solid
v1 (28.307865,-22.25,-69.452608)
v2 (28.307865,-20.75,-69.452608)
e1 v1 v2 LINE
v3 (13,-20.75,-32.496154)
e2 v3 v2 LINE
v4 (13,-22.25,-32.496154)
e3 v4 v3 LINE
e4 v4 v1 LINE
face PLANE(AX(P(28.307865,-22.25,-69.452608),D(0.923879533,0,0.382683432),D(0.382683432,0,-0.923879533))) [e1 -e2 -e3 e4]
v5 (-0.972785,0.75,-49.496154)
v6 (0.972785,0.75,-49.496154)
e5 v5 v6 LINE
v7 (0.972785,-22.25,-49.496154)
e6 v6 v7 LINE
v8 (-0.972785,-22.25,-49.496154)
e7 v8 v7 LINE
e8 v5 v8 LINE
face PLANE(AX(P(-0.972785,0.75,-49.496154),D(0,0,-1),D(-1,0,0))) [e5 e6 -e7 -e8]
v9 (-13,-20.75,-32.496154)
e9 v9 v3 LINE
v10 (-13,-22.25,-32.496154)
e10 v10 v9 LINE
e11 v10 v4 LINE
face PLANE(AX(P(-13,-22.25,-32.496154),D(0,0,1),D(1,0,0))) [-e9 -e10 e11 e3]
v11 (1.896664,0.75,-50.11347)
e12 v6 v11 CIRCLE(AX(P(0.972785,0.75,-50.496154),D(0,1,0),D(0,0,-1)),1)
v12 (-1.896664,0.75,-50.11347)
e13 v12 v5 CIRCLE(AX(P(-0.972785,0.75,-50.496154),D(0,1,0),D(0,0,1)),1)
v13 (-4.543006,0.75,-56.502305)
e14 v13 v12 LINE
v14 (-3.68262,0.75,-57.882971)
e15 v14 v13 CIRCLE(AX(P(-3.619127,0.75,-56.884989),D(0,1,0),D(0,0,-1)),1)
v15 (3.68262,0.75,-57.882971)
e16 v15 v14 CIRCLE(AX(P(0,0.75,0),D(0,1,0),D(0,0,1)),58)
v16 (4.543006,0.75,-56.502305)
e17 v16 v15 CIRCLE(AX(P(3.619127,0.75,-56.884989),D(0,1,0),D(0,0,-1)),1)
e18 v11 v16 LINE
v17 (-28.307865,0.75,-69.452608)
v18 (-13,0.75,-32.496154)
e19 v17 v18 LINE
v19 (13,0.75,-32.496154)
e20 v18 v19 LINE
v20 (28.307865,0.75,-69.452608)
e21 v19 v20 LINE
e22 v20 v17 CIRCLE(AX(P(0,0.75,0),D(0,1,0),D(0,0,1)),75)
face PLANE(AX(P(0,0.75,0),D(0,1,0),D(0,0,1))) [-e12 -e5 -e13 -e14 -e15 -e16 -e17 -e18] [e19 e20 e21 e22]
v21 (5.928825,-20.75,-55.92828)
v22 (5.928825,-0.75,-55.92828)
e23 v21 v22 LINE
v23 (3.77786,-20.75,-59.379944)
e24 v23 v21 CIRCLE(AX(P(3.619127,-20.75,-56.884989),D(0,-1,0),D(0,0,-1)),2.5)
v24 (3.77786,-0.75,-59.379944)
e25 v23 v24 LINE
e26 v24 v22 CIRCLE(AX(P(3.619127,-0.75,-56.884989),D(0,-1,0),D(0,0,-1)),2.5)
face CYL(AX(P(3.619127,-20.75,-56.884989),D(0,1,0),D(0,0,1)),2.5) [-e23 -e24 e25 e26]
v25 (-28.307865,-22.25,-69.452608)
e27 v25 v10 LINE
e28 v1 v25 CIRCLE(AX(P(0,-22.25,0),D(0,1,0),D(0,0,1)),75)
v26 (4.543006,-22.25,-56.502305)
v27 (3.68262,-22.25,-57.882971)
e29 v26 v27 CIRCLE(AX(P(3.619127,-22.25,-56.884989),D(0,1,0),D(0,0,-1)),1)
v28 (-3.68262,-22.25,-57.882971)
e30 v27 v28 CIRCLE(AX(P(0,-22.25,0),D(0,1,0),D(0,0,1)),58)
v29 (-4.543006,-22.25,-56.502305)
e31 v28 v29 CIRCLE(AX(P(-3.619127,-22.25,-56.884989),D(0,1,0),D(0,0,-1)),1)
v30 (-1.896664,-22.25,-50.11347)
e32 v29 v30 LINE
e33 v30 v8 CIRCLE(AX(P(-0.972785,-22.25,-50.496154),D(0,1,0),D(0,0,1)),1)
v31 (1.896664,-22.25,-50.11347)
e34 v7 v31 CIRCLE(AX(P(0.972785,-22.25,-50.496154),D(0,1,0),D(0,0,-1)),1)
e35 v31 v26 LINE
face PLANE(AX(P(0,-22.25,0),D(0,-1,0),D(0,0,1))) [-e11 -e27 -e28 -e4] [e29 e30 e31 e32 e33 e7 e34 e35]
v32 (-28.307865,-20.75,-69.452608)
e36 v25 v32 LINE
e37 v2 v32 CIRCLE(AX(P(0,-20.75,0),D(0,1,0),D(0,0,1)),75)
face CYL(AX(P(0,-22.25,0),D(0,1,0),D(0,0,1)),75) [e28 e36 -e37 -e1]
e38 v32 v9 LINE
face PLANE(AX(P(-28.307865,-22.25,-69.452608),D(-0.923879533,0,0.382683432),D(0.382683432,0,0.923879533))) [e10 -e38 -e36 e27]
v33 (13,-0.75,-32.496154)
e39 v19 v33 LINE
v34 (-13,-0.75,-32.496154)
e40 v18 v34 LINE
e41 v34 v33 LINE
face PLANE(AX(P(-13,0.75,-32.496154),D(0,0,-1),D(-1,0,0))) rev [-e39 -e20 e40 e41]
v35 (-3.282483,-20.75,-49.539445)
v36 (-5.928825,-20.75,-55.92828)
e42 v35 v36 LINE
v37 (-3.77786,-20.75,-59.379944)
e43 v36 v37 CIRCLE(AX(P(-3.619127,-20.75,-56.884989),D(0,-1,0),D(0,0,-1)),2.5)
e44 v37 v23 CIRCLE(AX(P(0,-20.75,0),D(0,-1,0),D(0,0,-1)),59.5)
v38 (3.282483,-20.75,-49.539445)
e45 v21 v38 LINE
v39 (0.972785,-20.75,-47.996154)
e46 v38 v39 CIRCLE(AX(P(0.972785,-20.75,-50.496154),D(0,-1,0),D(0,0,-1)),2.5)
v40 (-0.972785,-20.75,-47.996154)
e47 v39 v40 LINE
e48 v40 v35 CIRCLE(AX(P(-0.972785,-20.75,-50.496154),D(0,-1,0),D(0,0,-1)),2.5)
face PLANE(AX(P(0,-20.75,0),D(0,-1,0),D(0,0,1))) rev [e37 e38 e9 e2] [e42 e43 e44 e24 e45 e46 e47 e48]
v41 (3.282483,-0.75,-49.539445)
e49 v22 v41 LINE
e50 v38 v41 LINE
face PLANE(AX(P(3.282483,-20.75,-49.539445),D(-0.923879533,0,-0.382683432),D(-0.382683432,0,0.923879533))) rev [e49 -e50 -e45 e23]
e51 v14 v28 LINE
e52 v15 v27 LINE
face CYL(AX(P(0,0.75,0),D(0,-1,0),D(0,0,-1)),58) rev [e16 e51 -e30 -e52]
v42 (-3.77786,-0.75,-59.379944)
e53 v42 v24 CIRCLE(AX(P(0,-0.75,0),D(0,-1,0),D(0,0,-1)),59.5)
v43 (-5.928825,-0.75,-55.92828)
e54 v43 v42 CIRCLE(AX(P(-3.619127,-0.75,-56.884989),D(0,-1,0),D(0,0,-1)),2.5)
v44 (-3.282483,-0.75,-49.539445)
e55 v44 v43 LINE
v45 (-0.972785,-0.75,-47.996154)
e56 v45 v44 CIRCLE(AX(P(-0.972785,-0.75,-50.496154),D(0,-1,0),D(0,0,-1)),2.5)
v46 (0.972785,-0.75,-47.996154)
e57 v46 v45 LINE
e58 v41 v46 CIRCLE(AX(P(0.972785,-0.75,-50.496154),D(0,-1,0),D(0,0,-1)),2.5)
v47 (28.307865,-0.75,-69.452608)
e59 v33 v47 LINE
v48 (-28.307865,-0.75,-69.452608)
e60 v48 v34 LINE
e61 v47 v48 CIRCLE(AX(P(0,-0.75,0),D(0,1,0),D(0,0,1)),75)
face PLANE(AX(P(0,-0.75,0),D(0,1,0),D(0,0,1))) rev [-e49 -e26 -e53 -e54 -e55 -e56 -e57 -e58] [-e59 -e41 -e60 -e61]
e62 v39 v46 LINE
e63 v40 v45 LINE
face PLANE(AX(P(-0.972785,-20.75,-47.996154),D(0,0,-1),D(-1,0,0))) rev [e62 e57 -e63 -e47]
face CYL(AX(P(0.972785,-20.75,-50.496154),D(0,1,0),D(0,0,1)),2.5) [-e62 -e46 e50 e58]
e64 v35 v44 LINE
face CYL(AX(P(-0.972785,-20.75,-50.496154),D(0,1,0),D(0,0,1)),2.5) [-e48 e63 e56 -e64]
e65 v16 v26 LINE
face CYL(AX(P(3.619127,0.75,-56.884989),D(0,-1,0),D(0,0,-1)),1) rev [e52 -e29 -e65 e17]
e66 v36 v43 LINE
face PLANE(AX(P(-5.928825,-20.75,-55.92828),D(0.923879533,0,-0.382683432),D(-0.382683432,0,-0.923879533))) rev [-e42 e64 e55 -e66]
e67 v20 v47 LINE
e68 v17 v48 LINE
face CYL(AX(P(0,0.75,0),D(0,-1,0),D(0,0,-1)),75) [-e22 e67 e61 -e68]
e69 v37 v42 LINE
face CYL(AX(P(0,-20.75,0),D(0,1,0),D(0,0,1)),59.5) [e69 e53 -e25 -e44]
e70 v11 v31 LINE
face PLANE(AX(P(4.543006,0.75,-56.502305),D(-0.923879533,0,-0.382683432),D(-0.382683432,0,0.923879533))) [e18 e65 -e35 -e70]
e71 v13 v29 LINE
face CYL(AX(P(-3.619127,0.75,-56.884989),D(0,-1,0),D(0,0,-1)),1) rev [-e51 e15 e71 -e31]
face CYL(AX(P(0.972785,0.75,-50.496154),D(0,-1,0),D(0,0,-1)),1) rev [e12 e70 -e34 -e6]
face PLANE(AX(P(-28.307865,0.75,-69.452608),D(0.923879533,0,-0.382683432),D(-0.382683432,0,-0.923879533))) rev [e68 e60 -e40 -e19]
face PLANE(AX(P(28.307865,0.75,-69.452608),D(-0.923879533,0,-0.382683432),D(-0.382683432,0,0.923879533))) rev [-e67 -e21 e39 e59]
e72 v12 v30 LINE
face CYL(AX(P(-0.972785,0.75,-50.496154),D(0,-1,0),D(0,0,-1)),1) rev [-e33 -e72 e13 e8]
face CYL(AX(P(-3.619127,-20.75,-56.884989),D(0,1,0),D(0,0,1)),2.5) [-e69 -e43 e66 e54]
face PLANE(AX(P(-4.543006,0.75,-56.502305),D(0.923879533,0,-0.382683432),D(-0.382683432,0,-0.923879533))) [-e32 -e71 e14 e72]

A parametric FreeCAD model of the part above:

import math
import FreeCAD as App
import Part
import Sketcher
Q = App.Units.Quantity

doc = App.newDocument("Part")
body = doc.addObject("PartDesign::Body", "Body")

# Sketch on XZ plane
sketch1 = body.newObject("Sketcher::SketchObject", "Sketch")
sketch1.AttachmentSupport = (doc.getObject("XZ_Plane"), [""])
sketch1.MapMode = "FlatFace"
sketch1.addGeometry([
    Part.LineSegment(App.Vector(-28.3, -69.5, 0), App.Vector(-13, -32.5, 0)),  # 0
    Part.LineSegment(App.Vector(-13, -32.5, 0), App.Vector(13, -32.5, 0)),  # 1
    Part.LineSegment(App.Vector(13, -32.5, 0), App.Vector(28.3, -69.5, 0)),  # 2
    Part.ArcOfCircle(Part.Circle(App.Vector(0, 0, 0), App.Vector(0, 0, 1), 75), math.radians(-112), math.radians(-68)),  # 3
    Part.LineSegment(App.Vector(-1.9, -50.1, 0), App.Vector(-4.5, -56.5, 0)),  # 4
    Part.ArcOfCircle(Part.Circle(App.Vector(-3.6, -56.9, 0), App.Vector(0, 0, 1), 1), math.radians(158), math.radians(266)),  # 5
    Part.ArcOfCircle(Part.Circle(App.Vector(0, 0, 0), App.Vector(0, 0, 1), 58), math.radians(-93.64), math.radians(-86.36)),  # 6
    Part.ArcOfCircle(Part.Circle(App.Vector(3.6, -56.9, 0), App.Vector(0, 0, 1), 1), math.radians(-86), math.radians(22)),  # 7
    Part.LineSegment(App.Vector(4.5, -56.5, 0), App.Vector(1.9, -50.1, 0)),  # 8
    Part.ArcOfCircle(Part.Circle(App.Vector(1, -50.5, 0), App.Vector(0, 0, 1), 1), math.radians(22), math.radians(90)),  # 9
    Part.LineSegment(App.Vector(1, -49.5, 0), App.Vector(-1, -49.5, 0)),  # 10
    Part.ArcOfCircle(Part.Circle(App.Vector(-1, -50.5, 0), App.Vector(0, 0, 1), 1), math.radians(90), math.radians(158)),  # 11
], False)
sketch1.addConstraint([
    Sketcher.Constraint("Coincident", 0, 2, 1, 1),
    Sketcher.Constraint("Coincident", 1, 2, 2, 1),
    Sketcher.Constraint("Coincident", 2, 2, 3, 2),
    Sketcher.Constraint("Coincident", 3, 1, 0, 1),
    Sketcher.Constraint("Tangent", 4, 2, 5, 1),
    Sketcher.Constraint("Tangent", 5, 2, 6, 1),
    Sketcher.Constraint("Tangent", 6, 2, 7, 1),
    Sketcher.Constraint("Tangent", 7, 2, 8, 1),
    Sketcher.Constraint("Tangent", 8, 2, 9, 1),
    Sketcher.Constraint("Tangent", 9, 2, 10, 1),
    Sketcher.Constraint("Tangent", 10, 2, 11, 1),
    Sketcher.Constraint("Tangent", 11, 2, 4, 1),
    Sketcher.Constraint("Horizontal", 1),
    Sketcher.Constraint("Horizontal", 10),
    Sketcher.Constraint("Coincident", 3, 3, -1, 1),
    Sketcher.Constraint("Coincident", 6, 3, -1, 1),
    Sketcher.Constraint("Equal", 5, 7),
    Sketcher.Constraint("Equal", 7, 9),
    Sketcher.Constraint("Equal", 9, 11),
    Sketcher.Constraint("Symmetric", 4, 2, 7, 2, -2),
    Sketcher.Constraint("Parallel", 0, 4),
    Sketcher.Constraint("Parallel", 2, 8),
    Sketcher.Constraint("Horizontal", 2, 2, 3, 1),
    Sketcher.Constraint("Radius", 3, Q("75 mm")),
    Sketcher.Constraint("Radius", 5, Q("1 mm")),
    Sketcher.Constraint("Radius", 6, Q("58 mm")),
    Sketcher.Constraint("DistanceX", 1, 1, 1, 2, Q("26 mm")),
    Sketcher.Constraint("Angle", 0, Q("67.5 deg")),
    Sketcher.Constraint("DistanceY", 11, 3, 0, 2, Q("18 mm")),
    Sketcher.Constraint("DistanceX", 10, 2, 10, 1, Q("1.945569 mm")),
    Sketcher.Constraint("DistanceY", 6, 2, 8, 2, Q("7.769501 mm")),
])
pad1 = body.newObject("PartDesign::Pad", "Pad")
pad1.Profile = sketch1
pad1.Length = 1.5
pad1.Midplane = True

# Sketch on XZ plane
sketch2 = body.newObject("Sketcher::SketchObject", "Sketch001")
sketch2.AttachmentSupport = (doc.getObject("XZ_Plane"), [""])
sketch2.MapMode = "FlatFace"
sketch2.AttachmentOffset = App.Placement(App.Vector(0, 0, 0.75), App.Rotation())
sketch2.addGeometry([
    Part.LineSegment(App.Vector(1, -48, 0), App.Vector(-1, -48, 0)),  # 0
    Part.ArcOfCircle(Part.Circle(App.Vector(-1, -50.5, 0), App.Vector(0, 0, 1), 2.5), math.radians(90), math.radians(157)),  # 1
    Part.LineSegment(App.Vector(-3.3, -49.5, 0), App.Vector(-5.9, -55.9, 0)),  # 2
    Part.ArcOfCircle(Part.Circle(App.Vector(-3.6, -56.9, 0), App.Vector(0, 0, 1), 2.5), math.radians(157), math.radians(266)),  # 3
    Part.ArcOfCircle(Part.Circle(App.Vector(0, 0, 0), App.Vector(0, 0, 1), 59.5), math.radians(-93.64), math.radians(-86.36)),  # 4
    Part.ArcOfCircle(Part.Circle(App.Vector(3.6, -56.9, 0), App.Vector(0, 0, 1), 2.5), math.radians(-86), math.radians(23)),  # 5
    Part.LineSegment(App.Vector(5.9, -55.9, 0), App.Vector(3.3, -49.5, 0)),  # 6
    Part.ArcOfCircle(Part.Circle(App.Vector(1, -50.5, 0), App.Vector(0, 0, 1), 2.5), math.radians(23), math.radians(90)),  # 7
    Part.LineSegment(App.Vector(1.9, -50.1, 0), App.Vector(4.5, -56.5, 0)),  # 8
    Part.ArcOfCircle(Part.Circle(App.Vector(3.6, -56.9, 0), App.Vector(0, 0, 1), 1), math.radians(-86), math.radians(22)),  # 9
    Part.ArcOfCircle(Part.Circle(App.Vector(0, 0, 0), App.Vector(0, 0, 1), 58), math.radians(-93.64), math.radians(-86.36)),  # 10
    Part.ArcOfCircle(Part.Circle(App.Vector(-3.6, -56.9, 0), App.Vector(0, 0, 1), 1), math.radians(158), math.radians(266)),  # 11
    Part.LineSegment(App.Vector(-4.5, -56.5, 0), App.Vector(-1.9, -50.1, 0)),  # 12
    Part.ArcOfCircle(Part.Circle(App.Vector(-1, -50.5, 0), App.Vector(0, 0, 1), 1), math.radians(90), math.radians(158)),  # 13
    Part.LineSegment(App.Vector(-1, -49.5, 0), App.Vector(1, -49.5, 0)),  # 14
    Part.ArcOfCircle(Part.Circle(App.Vector(1, -50.5, 0), App.Vector(0, 0, 1), 1), math.radians(22), math.radians(90)),  # 15
], False)
sketch2.addConstraint([
    Sketcher.Constraint("Tangent", 0, 2, 1, 1),
    Sketcher.Constraint("Tangent", 1, 2, 2, 1),
    Sketcher.Constraint("Tangent", 2, 2, 3, 1),
    Sketcher.Constraint("Tangent", 3, 2, 4, 1),
    Sketcher.Constraint("Tangent", 4, 2, 5, 1),
    Sketcher.Constraint("Tangent", 5, 2, 6, 1),
    Sketcher.Constraint("Tangent", 6, 2, 7, 1),
    Sketcher.Constraint("Tangent", 7, 2, 0, 1),
    Sketcher.Constraint("Tangent", 8, 2, 9, 2),
    Sketcher.Constraint("Tangent", 9, 1, 10, 2),
    Sketcher.Constraint("Tangent", 10, 1, 11, 2),
    Sketcher.Constraint("Tangent", 11, 1, 12, 1),
    Sketcher.Constraint("Tangent", 12, 2, 13, 2),
    Sketcher.Constraint("Tangent", 13, 1, 14, 1),
    Sketcher.Constraint("Tangent", 14, 2, 15, 2),
    Sketcher.Constraint("Tangent", 15, 1, 8, 1),
    Sketcher.Constraint("Horizontal", 0),
    Sketcher.Constraint("Horizontal", 14),
    Sketcher.Constraint("Coincident", 4, 3, -1, 1),
    Sketcher.Constraint("Coincident", 10, 3, -1, 1),
    Sketcher.Constraint("Coincident", 9, 3, 5, 3),
    Sketcher.Constraint("Coincident", 11, 3, 3, 3),
    Sketcher.Constraint("Coincident", 13, 3, 1, 3),
    Sketcher.Constraint("Coincident", 15, 3, 7, 3),
    Sketcher.Constraint("Equal", 1, 3),
    Sketcher.Constraint("Equal", 3, 5),
    Sketcher.Constraint("Equal", 5, 7),
    Sketcher.Constraint("Equal", 11, 13),
    Sketcher.Constraint("Symmetric", 2, 2, 5, 2, -2),
    Sketcher.Constraint("Radius", 9, Q("1 mm")),
    Sketcher.Constraint("Radius", 10, Q("58 mm")),
    Sketcher.Constraint("Radius", 1, Q("2.5 mm")),
    Sketcher.Constraint("Angle", 2, Q("-112.5 deg")),
    Sketcher.Constraint("DistanceX", 0, 2, 0, 1, Q("1.945569 mm")),
    Sketcher.Constraint("DistanceY", 3, 3, -1, 1, Q("56.884989 mm")),
])
pad2 = body.newObject("PartDesign::Pad", "Pad001")
pad2.Profile = sketch2
pad2.Length = 20
doc.recompute()

datumplane = body.newObject("PartDesign::Plane", "DatumPlane")
datumplane.AttachmentSupport = (doc.getObject("XZ_Plane"), [""])
datumplane.MapMode = "FlatFace"
datumplane.AttachmentOffset = App.Placement(App.Vector(0, 0, 10.75), App.Rotation())
mirrored = body.newObject("PartDesign::Mirrored", "Mirrored")
mirrored.Originals = [pad1]
mirrored.MirrorPlane = (datumplane, [""])
body.Tip = mirrored

doc.recompute()
